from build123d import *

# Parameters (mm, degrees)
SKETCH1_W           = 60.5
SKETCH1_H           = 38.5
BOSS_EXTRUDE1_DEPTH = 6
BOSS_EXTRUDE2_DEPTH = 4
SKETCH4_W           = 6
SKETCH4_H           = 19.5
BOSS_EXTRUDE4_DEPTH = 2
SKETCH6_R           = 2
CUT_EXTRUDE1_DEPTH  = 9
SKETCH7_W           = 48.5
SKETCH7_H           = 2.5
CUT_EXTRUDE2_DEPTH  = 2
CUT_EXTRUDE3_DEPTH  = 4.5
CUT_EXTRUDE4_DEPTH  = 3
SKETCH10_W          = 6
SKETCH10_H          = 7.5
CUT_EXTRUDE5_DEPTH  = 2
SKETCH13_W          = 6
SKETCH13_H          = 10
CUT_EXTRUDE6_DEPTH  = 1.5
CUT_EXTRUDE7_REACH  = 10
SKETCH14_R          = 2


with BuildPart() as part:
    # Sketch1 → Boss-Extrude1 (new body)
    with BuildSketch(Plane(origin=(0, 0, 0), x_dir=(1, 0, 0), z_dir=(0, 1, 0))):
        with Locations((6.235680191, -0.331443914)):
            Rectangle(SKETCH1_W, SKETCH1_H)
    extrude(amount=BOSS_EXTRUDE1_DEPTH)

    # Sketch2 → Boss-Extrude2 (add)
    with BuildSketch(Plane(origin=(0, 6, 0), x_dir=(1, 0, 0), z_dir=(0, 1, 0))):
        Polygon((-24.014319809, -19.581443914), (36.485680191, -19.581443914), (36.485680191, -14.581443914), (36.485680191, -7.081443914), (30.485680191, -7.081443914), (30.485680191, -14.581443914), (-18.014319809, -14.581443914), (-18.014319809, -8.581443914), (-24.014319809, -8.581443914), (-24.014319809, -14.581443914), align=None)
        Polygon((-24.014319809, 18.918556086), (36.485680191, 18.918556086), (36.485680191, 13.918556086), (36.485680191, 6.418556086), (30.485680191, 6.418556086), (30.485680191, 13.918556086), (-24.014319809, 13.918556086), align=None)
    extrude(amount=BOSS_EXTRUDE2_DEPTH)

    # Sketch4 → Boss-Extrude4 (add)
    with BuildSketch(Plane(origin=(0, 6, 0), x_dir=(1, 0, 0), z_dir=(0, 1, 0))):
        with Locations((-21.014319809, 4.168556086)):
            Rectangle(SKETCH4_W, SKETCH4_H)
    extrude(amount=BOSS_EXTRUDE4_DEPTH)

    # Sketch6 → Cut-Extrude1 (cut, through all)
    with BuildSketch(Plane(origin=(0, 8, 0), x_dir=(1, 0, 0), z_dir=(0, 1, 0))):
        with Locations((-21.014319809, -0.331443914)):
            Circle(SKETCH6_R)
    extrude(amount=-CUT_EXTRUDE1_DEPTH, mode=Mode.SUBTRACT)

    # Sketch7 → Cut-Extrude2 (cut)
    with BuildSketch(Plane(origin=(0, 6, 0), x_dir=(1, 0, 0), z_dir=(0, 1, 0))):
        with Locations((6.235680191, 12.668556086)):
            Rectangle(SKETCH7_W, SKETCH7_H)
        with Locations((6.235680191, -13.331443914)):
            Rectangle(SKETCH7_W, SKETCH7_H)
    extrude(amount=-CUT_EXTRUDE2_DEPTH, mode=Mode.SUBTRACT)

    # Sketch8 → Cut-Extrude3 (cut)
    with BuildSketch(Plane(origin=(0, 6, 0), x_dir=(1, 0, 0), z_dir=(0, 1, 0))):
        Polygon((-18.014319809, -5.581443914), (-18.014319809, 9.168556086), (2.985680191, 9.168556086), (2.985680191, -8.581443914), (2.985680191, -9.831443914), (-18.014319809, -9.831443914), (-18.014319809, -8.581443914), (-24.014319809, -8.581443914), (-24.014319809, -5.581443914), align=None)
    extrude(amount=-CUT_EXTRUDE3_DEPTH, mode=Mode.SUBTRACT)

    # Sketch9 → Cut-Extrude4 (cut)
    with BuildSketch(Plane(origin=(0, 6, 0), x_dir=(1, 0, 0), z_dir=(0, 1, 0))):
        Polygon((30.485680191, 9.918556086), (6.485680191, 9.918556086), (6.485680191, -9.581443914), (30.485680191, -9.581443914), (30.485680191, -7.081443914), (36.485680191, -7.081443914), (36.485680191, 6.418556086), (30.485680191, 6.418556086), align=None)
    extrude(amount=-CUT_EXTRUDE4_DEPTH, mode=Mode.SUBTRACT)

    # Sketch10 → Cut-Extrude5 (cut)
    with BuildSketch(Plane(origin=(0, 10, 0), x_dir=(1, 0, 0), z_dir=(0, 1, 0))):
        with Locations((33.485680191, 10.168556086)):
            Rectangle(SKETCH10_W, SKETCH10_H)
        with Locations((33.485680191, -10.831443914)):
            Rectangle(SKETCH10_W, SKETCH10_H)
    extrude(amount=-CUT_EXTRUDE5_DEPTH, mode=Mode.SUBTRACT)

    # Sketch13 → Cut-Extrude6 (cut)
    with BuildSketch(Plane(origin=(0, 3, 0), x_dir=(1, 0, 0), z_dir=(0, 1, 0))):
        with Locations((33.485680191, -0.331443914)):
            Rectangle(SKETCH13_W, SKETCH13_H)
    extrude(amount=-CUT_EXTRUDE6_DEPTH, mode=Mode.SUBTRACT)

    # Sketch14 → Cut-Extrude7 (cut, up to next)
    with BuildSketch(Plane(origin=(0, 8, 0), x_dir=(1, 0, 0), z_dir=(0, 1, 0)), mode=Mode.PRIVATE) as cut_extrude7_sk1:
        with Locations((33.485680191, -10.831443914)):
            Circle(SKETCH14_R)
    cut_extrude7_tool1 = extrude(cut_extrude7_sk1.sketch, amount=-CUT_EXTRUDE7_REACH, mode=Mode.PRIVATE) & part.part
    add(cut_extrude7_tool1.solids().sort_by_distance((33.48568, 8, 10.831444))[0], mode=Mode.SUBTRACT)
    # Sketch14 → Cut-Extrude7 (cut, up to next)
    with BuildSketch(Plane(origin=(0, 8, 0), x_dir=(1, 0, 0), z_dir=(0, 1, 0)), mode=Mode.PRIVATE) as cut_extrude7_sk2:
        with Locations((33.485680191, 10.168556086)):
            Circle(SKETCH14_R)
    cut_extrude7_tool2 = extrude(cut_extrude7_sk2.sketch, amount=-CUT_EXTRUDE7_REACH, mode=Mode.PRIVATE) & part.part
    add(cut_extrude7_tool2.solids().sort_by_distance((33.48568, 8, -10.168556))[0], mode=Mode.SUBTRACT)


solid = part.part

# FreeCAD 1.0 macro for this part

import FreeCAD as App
import Part
import Sketcher

V = App.Vector
Q = App.Units.Quantity


def add_polygon(sketch, points):
    """Adds a closed chain of lines whose ends are joined by coincident constraints."""
    first, n = sketch.GeometryCount, len(points)
    for a, b in zip(points, points[1:] + points[:1]):
        sketch.addGeometry(Part.LineSegment(App.Vector(*a, 0), App.Vector(*b, 0)), False)
    for i in range(n):
        sketch.addConstraint(Sketcher.Constraint("Coincident", first + i, 2, first + (i + 1) % n, 1))

doc = App.newDocument("Part")
body = doc.addObject("PartDesign::Body", "Body")

sketch1 = body.newObject("Sketcher::SketchObject", "Sketch")
sketch1.AttachmentSupport = (doc.getObject("XZ_Plane"), [""])
sketch1.MapMode = "FlatFace"
add_polygon(sketch1, [(-24.01432, -18.918556), (-24.01432, 19.581444), (36.48568, 19.581444), (36.48568, -18.918556)])
sketch1.addConstraint([
    Sketcher.Constraint("Vertical", 0),
    Sketcher.Constraint("Horizontal", 1),
    Sketcher.Constraint("Vertical", 2),
    Sketcher.Constraint("Horizontal", 3),
    Sketcher.Constraint("DistanceX", 1, 1, 1, 2, Q("60.5 mm")),
    Sketcher.Constraint("DistanceY", 0, 1, 0, 2, Q("38.5 mm")),
    Sketcher.Constraint("DistanceX", 0, 2, -1, 1, Q("24.01432 mm")),
    Sketcher.Constraint("DistanceY", -1, 1, 0, 2, Q("19.581444 mm")),
])
pad1 = body.newObject("PartDesign::Pad", "Pad")
pad1.Profile = sketch1
pad1.Length = 6
pad1.Reversed = True

sketch2 = body.newObject("Sketcher::SketchObject", "Sketch001")
sketch2.AttachmentSupport = (doc.getObject("XZ_Plane"), [""])
sketch2.MapMode = "FlatFace"
sketch2.AttachmentOffset = App.Placement(V(0, 0, -6), App.Rotation())
add_polygon(sketch2, [(-24.01432, 19.581444), (36.48568, 19.581444), (36.48568, 7.081444), (30.48568, 7.081444), (30.48568, 14.581444), (-18.01432, 14.581444), (-18.01432, 8.581444), (-24.01432, 8.581444)])
add_polygon(sketch2, [(36.48568, -18.918556), (-24.01432, -18.918556), (-24.01432, -13.918556), (30.48568, -13.918556), (30.48568, -6.418556), (36.48568, -6.418556)])
sketch2.addConstraint([
    Sketcher.Constraint("Horizontal", 0),
    Sketcher.Constraint("Vertical", 1),
    Sketcher.Constraint("Horizontal", 2),
    Sketcher.Constraint("Vertical", 3),
    Sketcher.Constraint("Horizontal", 4),
    Sketcher.Constraint("Vertical", 5),
    Sketcher.Constraint("Horizontal", 6),
    Sketcher.Constraint("Vertical", 7),
    Sketcher.Constraint("Horizontal", 8),
    Sketcher.Constraint("Vertical", 9),
    Sketcher.Constraint("Horizontal", 10),
    Sketcher.Constraint("Vertical", 11),
    Sketcher.Constraint("Horizontal", 12),
    Sketcher.Constraint("Vertical", 13),
    Sketcher.Constraint("Vertical", 7, 2, 8, 2),
    Sketcher.Constraint("Vertical", 3, 2, 10, 2),
    Sketcher.Constraint("Vertical", 1, 2, 12, 2),
    Sketcher.Constraint("Equal", 2, 6),
    Sketcher.Constraint("Equal", 12, 5),
    Sketcher.Constraint("Equal", 3, 11),
    Sketcher.Constraint("Equal", 1, 13),
    Sketcher.Constraint("DistanceX", 2, 2, 2, 1, Q("6 mm")),
    Sketcher.Constraint("DistanceY", 7, 1, 7, 2, Q("11 mm")),
    Sketcher.Constraint("DistanceX", 0, 1, 0, 2, Q("60.5 mm")),
    Sketcher.Constraint("DistanceY", 1, 2, 1, 1, Q("12.5 mm")),
    Sketcher.Constraint("DistanceY", 8, 2, 2, 2, Q("26 mm")),
    Sketcher.Constraint("DistanceX", -1, 1, 0, 2, Q("36.48568 mm")),
    Sketcher.Constraint("DistanceY", -1, 1, 0, 2, Q("19.581444 mm")),
])
pad2 = body.newObject("PartDesign::Pad", "Pad001")
pad2.Profile = sketch2
pad2.Length = 4
pad2.Reversed = True

sketch3 = body.newObject("Sketcher::SketchObject", "Sketch002")
sketch3.AttachmentSupport = (doc.getObject("XZ_Plane"), [""])
sketch3.MapMode = "FlatFace"
sketch3.AttachmentOffset = App.Placement(V(0, 0, -6), App.Rotation())
add_polygon(sketch3, [(-24.01432, -13.918556), (-24.01432, 5.581444), (-18.01432, 5.581444), (-18.01432, -13.918556)])
sketch3.addConstraint([
    Sketcher.Constraint("Vertical", 0),
    Sketcher.Constraint("Horizontal", 1),
    Sketcher.Constraint("Vertical", 2),
    Sketcher.Constraint("Horizontal", 3),
    Sketcher.Constraint("DistanceX", 1, 1, 1, 2, Q("6 mm")),
    Sketcher.Constraint("DistanceY", 0, 1, 0, 2, Q("19.5 mm")),
    Sketcher.Constraint("DistanceX", 0, 2, -1, 1, Q("24.01432 mm")),
    Sketcher.Constraint("DistanceY", -1, 1, 0, 2, Q("5.581444 mm")),
])
pad3 = body.newObject("PartDesign::Pad", "Pad002")
pad3.Profile = sketch3
pad3.Length = 2
pad3.Reversed = True

sketch4 = body.newObject("Sketcher::SketchObject", "Sketch003")
sketch4.AttachmentSupport = (doc.getObject("XZ_Plane"), [""])
sketch4.MapMode = "FlatFace"
sketch4.AttachmentOffset = App.Placement(V(0, 0, -8), App.Rotation())
sketch4.addGeometry(Part.Circle(V(-21.01432, 0.331444, 0), V(0, 0, 1), 2), False)
sketch4.addConstraint([
    Sketcher.Constraint("Diameter", 0, Q("4 mm")),
    Sketcher.Constraint("DistanceX", 0, 3, -1, 1, Q("21.01432 mm")),
    Sketcher.Constraint("DistanceY", -1, 1, 0, 3, Q("0.331444 mm")),
])
pocket1 = body.newObject("PartDesign::Pocket", "Pocket")
pocket1.Profile = sketch4
pocket1.Type = "ThroughAll"
pocket1.Reversed = True

sketch5 = body.newObject("Sketcher::SketchObject", "Sketch004")
sketch5.AttachmentSupport = (doc.getObject("XZ_Plane"), [""])
sketch5.MapMode = "FlatFace"
sketch5.AttachmentOffset = App.Placement(V(0, 0, -6), App.Rotation())
add_polygon(sketch5, [(-18.01432, -13.918556), (-18.01432, -11.418556), (30.48568, -11.418556), (30.48568, -13.918556)])
add_polygon(sketch5, [(-18.01432, 12.081444), (-18.01432, 14.581444), (30.48568, 14.581444), (30.48568, 12.081444)])
sketch5.addConstraint([
    Sketcher.Constraint("Vertical", 0),
    Sketcher.Constraint("Horizontal", 1),
    Sketcher.Constraint("Vertical", 2),
    Sketcher.Constraint("Horizontal", 3),
    Sketcher.Constraint("Vertical", 4),
    Sketcher.Constraint("Horizontal", 5),
    Sketcher.Constraint("Vertical", 6),
    Sketcher.Constraint("Horizontal", 7),
    Sketcher.Constraint("Vertical", 3, 2, 4, 2),
    Sketcher.Constraint("Vertical", 2, 2, 5, 2),
    Sketcher.Constraint("Equal", 2, 4),
    Sketcher.Constraint("DistanceX", 1, 1, 1, 2, Q("48.5 mm")),
    Sketcher.Constraint("DistanceY", 0, 1, 0, 2, Q("2.5 mm")),
    Sketcher.Constraint("DistanceY", 0, 2, 4, 2, Q("26 mm")),
    Sketcher.Constraint("DistanceX", 0, 2, -1, 1, Q("18.01432 mm")),
    Sketcher.Constraint("DistanceY", 0, 2, -1, 1, Q("11.418556 mm")),
])
pocket2 = body.newObject("PartDesign::Pocket", "Pocket001")
pocket2.Profile = sketch5
pocket2.Length = 2
pocket2.Reversed = True

sketch6 = body.newObject("Sketcher::SketchObject", "Sketch005")
sketch6.AttachmentSupport = (doc.getObject("XZ_Plane"), [""])
sketch6.MapMode = "FlatFace"
sketch6.AttachmentOffset = App.Placement(V(0, 0, -6), App.Rotation())
add_polygon(sketch6, [(-18.01432, -9.168556), (-18.01432, 5.581444), (-24.01432, 5.581444), (-24.01432, 8.581444), (-18.01432, 8.581444), (-18.01432, 9.831444), (2.98568, 9.831444), (2.98568, -9.168556)])
sketch6.addConstraint([
    Sketcher.Constraint("Vertical", 0),
    Sketcher.Constraint("Horizontal", 1),
    Sketcher.Constraint("Vertical", 2),
    Sketcher.Constraint("Horizontal", 3),
    Sketcher.Constraint("Vertical", 4),
    Sketcher.Constraint("Horizontal", 5),
    Sketcher.Constraint("Vertical", 6),
    Sketcher.Constraint("Horizontal", 7),
    Sketcher.Constraint("Vertical", 0, 2, 3, 2),
    Sketcher.Constraint("DistanceX", 1, 2, 1, 1, Q("6 mm")),
    Sketcher.Constraint("DistanceX", 5, 1, 5, 2, Q("21 mm")),
    Sketcher.Constraint("DistanceY", 2, 1, 2, 2, Q("3 mm")),
    Sketcher.Constraint("DistanceY", 6, 2, 6, 1, Q("19 mm")),
    Sketcher.Constraint("DistanceY", 0, 1, 0, 2, Q("14.75 mm")),
    Sketcher.Constraint("DistanceX", 0, 2, -1, 1, Q("18.01432 mm")),
    Sketcher.Constraint("DistanceY", -1, 1, 0, 2, Q("5.581444 mm")),
])
pocket3 = body.newObject("PartDesign::Pocket", "Pocket002")
pocket3.Profile = sketch6
pocket3.Length = 4.5
pocket3.Reversed = True

sketch7 = body.newObject("Sketcher::SketchObject", "Sketch006")
sketch7.AttachmentSupport = (doc.getObject("XZ_Plane"), [""])
sketch7.MapMode = "FlatFace"
sketch7.AttachmentOffset = App.Placement(V(0, 0, -6), App.Rotation())
add_polygon(sketch7, [(30.48568, -9.918556), (6.48568, -9.918556), (6.48568, 9.581444), (30.48568, 9.581444), (30.48568, 7.081444), (36.48568, 7.081444), (36.48568, -6.418556), (30.48568, -6.418556)])
sketch7.addConstraint([
    Sketcher.Constraint("Horizontal", 0),
    Sketcher.Constraint("Vertical", 1),
    Sketcher.Constraint("Horizontal", 2),
    Sketcher.Constraint("Vertical", 3),
    Sketcher.Constraint("Horizontal", 4),
    Sketcher.Constraint("Vertical", 5),
    Sketcher.Constraint("Horizontal", 6),
    Sketcher.Constraint("Vertical", 7),
    Sketcher.Constraint("Vertical", 3, 2, 6, 2),
    Sketcher.Constraint("DistanceX", 0, 2, 0, 1, Q("24 mm")),
    Sketcher.Constraint("DistanceX", 4, 1, 4, 2, Q("6 mm")),
    Sketcher.Constraint("DistanceY", 1, 1, 1, 2, Q("19.5 mm")),
    Sketcher.Constraint("DistanceY", 3, 2, 3, 1, Q("2.5 mm")),
    Sketcher.Constraint("DistanceY", 5, 2, 5, 1, Q("13.5 mm")),
    Sketcher.Constraint("DistanceX", -1, 1, 0, 2, Q("6.48568 mm")),
    Sketcher.Constraint("DistanceY", 0, 2, -1, 1, Q("9.918556 mm")),
])
pocket4 = body.newObject("PartDesign::Pocket", "Pocket003")
pocket4.Profile = sketch7
pocket4.Length = 3
pocket4.Reversed = True

sketch8 = body.newObject("Sketcher::SketchObject", "Sketch007")
sketch8.AttachmentSupport = (doc.getObject("XZ_Plane"), [""])
sketch8.MapMode = "FlatFace"
sketch8.AttachmentOffset = App.Placement(V(0, 0, -10), App.Rotation())
add_polygon(sketch8, [(30.48568, -13.918556), (30.48568, -6.418556), (36.48568, -6.418556), (36.48568, -13.918556)])
add_polygon(sketch8, [(30.48568, 7.081444), (30.48568, 14.581444), (36.48568, 14.581444), (36.48568, 7.081444)])
sketch8.addConstraint([
    Sketcher.Constraint("Vertical", 0),
    Sketcher.Constraint("Horizontal", 1),
    Sketcher.Constraint("Vertical", 2),
    Sketcher.Constraint("Horizontal", 3),
    Sketcher.Constraint("Vertical", 4),
    Sketcher.Constraint("Horizontal", 5),
    Sketcher.Constraint("Vertical", 6),
    Sketcher.Constraint("Horizontal", 7),
    Sketcher.Constraint("Vertical", 3, 2, 4, 2),
    Sketcher.Constraint("Vertical", 2, 2, 5, 2),
    Sketcher.Constraint("Equal", 2, 4),
    Sketcher.Constraint("DistanceX", 1, 1, 1, 2, Q("6 mm")),
    Sketcher.Constraint("DistanceY", 0, 1, 0, 2, Q("7.5 mm")),
    Sketcher.Constraint("DistanceY", 0, 2, 4, 2, Q("21 mm")),
    Sketcher.Constraint("DistanceX", -1, 1, 0, 2, Q("30.48568 mm")),
    Sketcher.Constraint("DistanceY", 0, 2, -1, 1, Q("6.418556 mm")),
])
pocket5 = body.newObject("PartDesign::Pocket", "Pocket004")
pocket5.Profile = sketch8
pocket5.Length = 2
pocket5.Reversed = True

sketch9 = body.newObject("Sketcher::SketchObject", "Sketch008")
sketch9.AttachmentSupport = (doc.getObject("XZ_Plane"), [""])
sketch9.MapMode = "FlatFace"
sketch9.AttachmentOffset = App.Placement(V(0, 0, -3), App.Rotation())
add_polygon(sketch9, [(30.48568, -4.668556), (30.48568, 5.331444), (36.48568, 5.331444), (36.48568, -4.668556)])
sketch9.addConstraint([
    Sketcher.Constraint("Vertical", 0),
    Sketcher.Constraint("Horizontal", 1),
    Sketcher.Constraint("Vertical", 2),
    Sketcher.Constraint("Horizontal", 3),
    Sketcher.Constraint("DistanceX", 1, 1, 1, 2, Q("6 mm")),
    Sketcher.Constraint("DistanceY", 0, 1, 0, 2, Q("10 mm")),
    Sketcher.Constraint("DistanceX", -1, 1, 0, 2, Q("30.48568 mm")),
    Sketcher.Constraint("DistanceY", -1, 1, 0, 2, Q("5.331444 mm")),
])
pocket6 = body.newObject("PartDesign::Pocket", "Pocket005")
pocket6.Profile = sketch9
pocket6.Length = 1.5
pocket6.Reversed = True

sketch10 = body.newObject("Sketcher::SketchObject", "Sketch009")
sketch10.AttachmentSupport = (doc.getObject("XZ_Plane"), [""])
sketch10.MapMode = "FlatFace"
sketch10.AttachmentOffset = App.Placement(V(0, 0, -8), App.Rotation())
sketch10.addGeometry(Part.Circle(V(33.48568, 10.831444, 0), V(0, 0, 1), 2), False)
sketch10.addConstraint([
    Sketcher.Constraint("Diameter", 0, Q("4 mm")),
    Sketcher.Constraint("DistanceX", -1, 1, 0, 3, Q("33.48568 mm")),
    Sketcher.Constraint("DistanceY", -1, 1, 0, 3, Q("10.831444 mm")),
])
pocket7 = body.newObject("PartDesign::Pocket", "Pocket006")
pocket7.Profile = sketch10
pocket7.Type = "UpToFirst"
pocket7.Reversed = True

sketch11 = body.newObject("Sketcher::SketchObject", "Sketch010")
sketch11.AttachmentSupport = (doc.getObject("XZ_Plane"), [""])
sketch11.MapMode = "FlatFace"
sketch11.AttachmentOffset = App.Placement(V(0, 0, -8), App.Rotation())
sketch11.addGeometry(Part.Circle(V(33.48568, -10.168556, 0), V(0, 0, 1), 2), False)
sketch11.addConstraint([
    Sketcher.Constraint("Diameter", 0, Q("4 mm")),
    Sketcher.Constraint("DistanceX", -1, 1, 0, 3, Q("33.48568 mm")),
    Sketcher.Constraint("DistanceY", 0, 3, -1, 1, Q("10.168556 mm")),
])
pocket8 = body.newObject("PartDesign::Pocket", "Pocket007")
pocket8.Profile = sketch11
pocket8.Type = "UpToFirst"
pocket8.Reversed = True

doc.recompute()
